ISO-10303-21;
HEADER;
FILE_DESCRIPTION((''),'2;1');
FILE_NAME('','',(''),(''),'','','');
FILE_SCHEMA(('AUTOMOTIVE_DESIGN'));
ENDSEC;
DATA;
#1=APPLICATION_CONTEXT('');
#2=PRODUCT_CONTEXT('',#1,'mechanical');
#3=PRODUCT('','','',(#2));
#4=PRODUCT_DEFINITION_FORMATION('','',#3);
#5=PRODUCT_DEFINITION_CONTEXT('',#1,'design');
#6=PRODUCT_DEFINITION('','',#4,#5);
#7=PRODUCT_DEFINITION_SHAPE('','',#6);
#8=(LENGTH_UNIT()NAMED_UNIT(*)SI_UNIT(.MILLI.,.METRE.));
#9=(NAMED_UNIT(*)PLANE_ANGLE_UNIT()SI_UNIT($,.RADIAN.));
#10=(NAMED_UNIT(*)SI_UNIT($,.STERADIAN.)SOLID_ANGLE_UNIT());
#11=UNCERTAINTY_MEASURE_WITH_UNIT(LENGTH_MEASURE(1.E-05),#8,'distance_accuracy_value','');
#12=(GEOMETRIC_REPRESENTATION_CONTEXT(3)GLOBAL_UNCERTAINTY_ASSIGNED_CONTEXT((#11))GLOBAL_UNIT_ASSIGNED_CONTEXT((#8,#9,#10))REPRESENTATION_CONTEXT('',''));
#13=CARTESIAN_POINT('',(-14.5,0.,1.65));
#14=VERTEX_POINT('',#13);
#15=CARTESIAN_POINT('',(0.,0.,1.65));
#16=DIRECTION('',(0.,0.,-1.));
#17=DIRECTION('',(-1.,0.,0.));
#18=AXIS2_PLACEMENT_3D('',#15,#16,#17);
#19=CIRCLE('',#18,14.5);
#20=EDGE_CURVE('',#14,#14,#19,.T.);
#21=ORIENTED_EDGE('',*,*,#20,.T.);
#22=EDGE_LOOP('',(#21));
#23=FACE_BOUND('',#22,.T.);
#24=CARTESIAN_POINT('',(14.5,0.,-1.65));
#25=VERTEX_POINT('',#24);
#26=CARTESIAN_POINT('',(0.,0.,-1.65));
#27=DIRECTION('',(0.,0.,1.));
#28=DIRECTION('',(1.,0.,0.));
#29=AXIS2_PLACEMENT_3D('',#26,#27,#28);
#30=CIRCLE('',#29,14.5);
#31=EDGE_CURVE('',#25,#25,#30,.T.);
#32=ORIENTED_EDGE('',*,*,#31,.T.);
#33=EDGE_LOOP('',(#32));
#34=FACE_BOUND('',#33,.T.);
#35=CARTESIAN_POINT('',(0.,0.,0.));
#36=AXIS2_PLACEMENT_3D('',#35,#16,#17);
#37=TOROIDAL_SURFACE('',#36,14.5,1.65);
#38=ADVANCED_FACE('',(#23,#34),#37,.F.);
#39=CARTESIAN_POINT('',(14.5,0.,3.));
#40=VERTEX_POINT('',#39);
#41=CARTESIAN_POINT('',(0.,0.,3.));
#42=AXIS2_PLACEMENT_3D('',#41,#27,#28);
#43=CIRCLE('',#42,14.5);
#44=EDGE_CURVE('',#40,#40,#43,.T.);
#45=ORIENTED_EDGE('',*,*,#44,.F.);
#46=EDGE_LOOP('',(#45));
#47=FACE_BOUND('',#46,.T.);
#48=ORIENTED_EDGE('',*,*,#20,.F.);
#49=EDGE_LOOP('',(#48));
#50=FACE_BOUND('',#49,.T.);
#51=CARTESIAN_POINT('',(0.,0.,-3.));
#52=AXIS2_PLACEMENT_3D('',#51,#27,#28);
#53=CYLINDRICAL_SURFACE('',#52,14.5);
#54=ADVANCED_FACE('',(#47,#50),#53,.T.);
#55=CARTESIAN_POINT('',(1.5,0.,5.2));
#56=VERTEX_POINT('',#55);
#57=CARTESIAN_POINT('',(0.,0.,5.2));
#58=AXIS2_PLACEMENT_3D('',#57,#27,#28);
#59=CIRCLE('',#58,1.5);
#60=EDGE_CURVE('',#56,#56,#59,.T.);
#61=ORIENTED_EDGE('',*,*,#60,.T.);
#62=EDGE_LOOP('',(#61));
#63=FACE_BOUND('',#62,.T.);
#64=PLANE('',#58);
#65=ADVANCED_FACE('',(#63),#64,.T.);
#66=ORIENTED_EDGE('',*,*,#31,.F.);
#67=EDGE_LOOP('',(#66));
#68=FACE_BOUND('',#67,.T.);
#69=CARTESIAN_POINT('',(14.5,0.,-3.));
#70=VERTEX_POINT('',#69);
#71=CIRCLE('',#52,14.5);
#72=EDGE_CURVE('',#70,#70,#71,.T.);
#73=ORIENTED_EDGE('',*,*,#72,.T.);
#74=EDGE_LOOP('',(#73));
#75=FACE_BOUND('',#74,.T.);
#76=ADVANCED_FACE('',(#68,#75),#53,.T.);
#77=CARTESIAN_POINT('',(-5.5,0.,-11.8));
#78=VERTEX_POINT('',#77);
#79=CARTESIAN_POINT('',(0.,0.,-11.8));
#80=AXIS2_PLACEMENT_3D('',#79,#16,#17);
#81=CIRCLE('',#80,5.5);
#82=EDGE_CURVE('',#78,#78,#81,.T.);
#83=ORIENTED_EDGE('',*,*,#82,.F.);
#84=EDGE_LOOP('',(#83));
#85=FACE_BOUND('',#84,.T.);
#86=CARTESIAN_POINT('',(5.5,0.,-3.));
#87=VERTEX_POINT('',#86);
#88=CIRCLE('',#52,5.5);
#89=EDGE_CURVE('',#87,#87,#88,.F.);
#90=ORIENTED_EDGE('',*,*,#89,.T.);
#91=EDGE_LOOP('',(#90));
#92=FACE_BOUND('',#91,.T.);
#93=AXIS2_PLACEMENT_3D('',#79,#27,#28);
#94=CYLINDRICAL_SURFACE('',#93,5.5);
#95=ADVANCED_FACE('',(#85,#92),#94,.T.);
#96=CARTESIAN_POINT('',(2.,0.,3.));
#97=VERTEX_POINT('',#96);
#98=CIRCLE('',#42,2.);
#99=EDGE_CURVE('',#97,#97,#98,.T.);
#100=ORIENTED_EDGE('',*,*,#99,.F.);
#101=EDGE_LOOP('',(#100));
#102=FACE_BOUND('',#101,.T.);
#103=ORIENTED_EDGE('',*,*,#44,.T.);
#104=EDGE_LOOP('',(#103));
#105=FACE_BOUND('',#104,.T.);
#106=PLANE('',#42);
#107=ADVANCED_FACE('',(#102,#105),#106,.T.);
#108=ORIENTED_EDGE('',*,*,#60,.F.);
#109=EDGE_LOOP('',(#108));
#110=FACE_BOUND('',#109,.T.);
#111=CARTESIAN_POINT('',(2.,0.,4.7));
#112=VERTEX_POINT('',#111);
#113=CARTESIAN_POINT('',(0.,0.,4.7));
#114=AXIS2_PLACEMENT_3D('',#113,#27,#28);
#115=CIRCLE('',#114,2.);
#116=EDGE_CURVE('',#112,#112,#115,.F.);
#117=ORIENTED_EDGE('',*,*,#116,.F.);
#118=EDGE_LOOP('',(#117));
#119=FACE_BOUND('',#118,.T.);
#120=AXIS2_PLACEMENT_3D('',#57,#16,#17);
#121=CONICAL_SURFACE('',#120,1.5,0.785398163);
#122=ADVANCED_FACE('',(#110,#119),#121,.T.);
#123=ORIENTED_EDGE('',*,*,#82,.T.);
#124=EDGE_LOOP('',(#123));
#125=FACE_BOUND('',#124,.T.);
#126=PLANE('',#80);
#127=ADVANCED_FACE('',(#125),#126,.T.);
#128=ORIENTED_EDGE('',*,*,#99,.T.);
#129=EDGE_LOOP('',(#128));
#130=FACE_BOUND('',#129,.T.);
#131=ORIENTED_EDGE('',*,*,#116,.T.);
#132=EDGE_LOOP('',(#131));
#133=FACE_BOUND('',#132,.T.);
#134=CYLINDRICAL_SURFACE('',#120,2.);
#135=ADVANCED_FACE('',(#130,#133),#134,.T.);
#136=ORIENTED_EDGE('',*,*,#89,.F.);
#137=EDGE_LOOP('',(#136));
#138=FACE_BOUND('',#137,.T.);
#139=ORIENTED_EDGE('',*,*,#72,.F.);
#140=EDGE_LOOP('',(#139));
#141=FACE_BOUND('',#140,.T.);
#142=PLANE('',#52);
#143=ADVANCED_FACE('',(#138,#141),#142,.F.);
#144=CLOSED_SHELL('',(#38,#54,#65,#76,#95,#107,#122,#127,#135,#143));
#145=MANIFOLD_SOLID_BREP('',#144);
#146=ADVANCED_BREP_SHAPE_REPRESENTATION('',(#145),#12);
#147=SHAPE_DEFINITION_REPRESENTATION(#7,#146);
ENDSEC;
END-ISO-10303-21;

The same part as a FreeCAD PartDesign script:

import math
import FreeCAD as App
import Part
import Sketcher


def edges_at(feature, points):
    """Names of the edges that pass closest to the given points."""
    edges = feature.Shape.Edges
    near = lambda p: min(range(len(edges)), key=lambda i: edges[i].distToShape(Part.Vertex(*p))[0])
    return sorted({f"Edge{near(p) + 1}" for p in points})

doc = App.newDocument("Part")
body = doc.addObject("PartDesign::Body", "Body")

sketch1 = body.newObject("Sketcher::SketchObject", "Sketch")
sketch1.AttachmentSupport = (doc.getObject("XY_Plane"), [""])
sketch1.MapMode = "FlatFace"
sketch1.addGeometry(Part.Circle(App.Vector(0, 0, 0), App.Vector(0, 0, 1), 14.5), False)
sketch1.addConstraint([
    Sketcher.Constraint("Coincident", 0, 3, -1, 1),
    Sketcher.Constraint("Diameter", 0, 29.0),
])
pad1 = body.newObject("PartDesign::Pad", "Pad")
pad1.Profile = sketch1
pad1.Type = "TwoLengths"
pad1.Length = 3
pad1.Length2 = 3

sketch2 = body.newObject("Sketcher::SketchObject", "Sketch001")
sketch2.AttachmentSupport = (doc.getObject("YZ_Plane"), [""])
sketch2.MapMode = "FlatFace"
sketch2.addGeometry(Part.Circle(App.Vector(14.5, 0, 0), App.Vector(0, 0, 1), 1.65), False)
sketch2.addConstraint([
    Sketcher.Constraint("PointOnObject", 0, 3, -1),
    Sketcher.Constraint("Diameter", 0, 3.3),
    Sketcher.Constraint("DistanceX", -1, 1, 0, 3, 14.5),
])

sketch3 = body.newObject("Sketcher::SketchObject", "Sketch002")
sketch3.AttachmentSupport = (doc.getObject("XY_Plane"), [""])
sketch3.MapMode = "FlatFace"
sketch3.AttachmentOffset = App.Placement(App.Vector(0, 0, 3), App.Rotation())
sketch3.addGeometry([
    Part.ArcOfCircle(Part.Circle(App.Vector(0, 0, 0), App.Vector(0, 0, 1), 14.5), math.radians(0), math.radians(90)),
    Part.ArcOfCircle(Part.Circle(App.Vector(0, 0, 0), App.Vector(0, 0, 1), 14.5), math.radians(90), math.radians(180)),
    Part.ArcOfCircle(Part.Circle(App.Vector(0, 0, 0), App.Vector(0, 0, 1), 14.5), math.radians(-180), math.radians(-90)),
    Part.ArcOfCircle(Part.Circle(App.Vector(0, 0, 0), App.Vector(0, 0, 1), 14.5), math.radians(-90), math.radians(0)),
], False)
sketch3.addConstraint([
    Sketcher.Constraint("Tangent", 0, 2, 1, 1),
    Sketcher.Constraint("Tangent", 1, 2, 2, 1),
    Sketcher.Constraint("Tangent", 2, 2, 3, 1),
    Sketcher.Constraint("Tangent", 3, 2, 0, 1),
    Sketcher.Constraint("Coincident", 0, 3, -1, 1),
    Sketcher.Constraint("Equal", 0, 1),
    Sketcher.Constraint("PointOnObject", 0, 2, -2),
    Sketcher.Constraint("PointOnObject", 1, 2, -1),
    Sketcher.Constraint("PointOnObject", 2, 2, -2),
    Sketcher.Constraint("PointOnObject", 3, 2, -1),
    Sketcher.Constraint("Radius", 0, 14.5),
])
doc.recompute()

subtractivepipe = body.newObject("PartDesign::SubtractivePipe", "SubtractivePipe")
subtractivepipe.Profile = sketch2
subtractivepipe.Spine = (sketch3, ["Edge1", "Edge2", "Edge3", "Edge4"])

sketch4 = body.newObject("Sketcher::SketchObject", "Sketch003")
sketch4.AttachmentSupport = (doc.getObject("XY_Plane"), [""])
sketch4.MapMode = "FlatFace"
sketch4.AttachmentOffset = App.Placement(App.Vector(0, 0, 3), App.Rotation())
sketch4.addGeometry(Part.Circle(App.Vector(0, 0, 0), App.Vector(0, 0, 1), 2), False)
sketch4.addConstraint([
    Sketcher.Constraint("Coincident", 0, 3, -1, 1),
    Sketcher.Constraint("Diameter", 0, 4.0),
])
pad2 = body.newObject("PartDesign::Pad", "Pad001")
pad2.Profile = sketch4
pad2.Length = 2.2
doc.recompute()

chamfer = body.newObject("PartDesign::Chamfer", "Chamfer")
chamfer.Base = (pad2, edges_at(pad2, [(-2, 0, 5.2)]))
chamfer.Size = 0.5

sketch5 = body.newObject("Sketcher::SketchObject", "Sketch004")
sketch5.AttachmentSupport = (doc.getObject("XY_Plane"), [""])
sketch5.MapMode = "FlatFace"
sketch5.AttachmentOffset = App.Placement(App.Vector(0, 0, -3), App.Rotation())
sketch5.addGeometry(Part.Circle(App.Vector(0, 0, 0), App.Vector(0, 0, 1), 5.5), False)
sketch5.addConstraint([
    Sketcher.Constraint("Coincident", 0, 3, -1, 1),
    Sketcher.Constraint("Diameter", 0, 11.0),
])
pad3 = body.newObject("PartDesign::Pad", "Pad002")
pad3.Profile = sketch5
pad3.Length = 8.8
pad3.Reversed = True

doc.recompute()
